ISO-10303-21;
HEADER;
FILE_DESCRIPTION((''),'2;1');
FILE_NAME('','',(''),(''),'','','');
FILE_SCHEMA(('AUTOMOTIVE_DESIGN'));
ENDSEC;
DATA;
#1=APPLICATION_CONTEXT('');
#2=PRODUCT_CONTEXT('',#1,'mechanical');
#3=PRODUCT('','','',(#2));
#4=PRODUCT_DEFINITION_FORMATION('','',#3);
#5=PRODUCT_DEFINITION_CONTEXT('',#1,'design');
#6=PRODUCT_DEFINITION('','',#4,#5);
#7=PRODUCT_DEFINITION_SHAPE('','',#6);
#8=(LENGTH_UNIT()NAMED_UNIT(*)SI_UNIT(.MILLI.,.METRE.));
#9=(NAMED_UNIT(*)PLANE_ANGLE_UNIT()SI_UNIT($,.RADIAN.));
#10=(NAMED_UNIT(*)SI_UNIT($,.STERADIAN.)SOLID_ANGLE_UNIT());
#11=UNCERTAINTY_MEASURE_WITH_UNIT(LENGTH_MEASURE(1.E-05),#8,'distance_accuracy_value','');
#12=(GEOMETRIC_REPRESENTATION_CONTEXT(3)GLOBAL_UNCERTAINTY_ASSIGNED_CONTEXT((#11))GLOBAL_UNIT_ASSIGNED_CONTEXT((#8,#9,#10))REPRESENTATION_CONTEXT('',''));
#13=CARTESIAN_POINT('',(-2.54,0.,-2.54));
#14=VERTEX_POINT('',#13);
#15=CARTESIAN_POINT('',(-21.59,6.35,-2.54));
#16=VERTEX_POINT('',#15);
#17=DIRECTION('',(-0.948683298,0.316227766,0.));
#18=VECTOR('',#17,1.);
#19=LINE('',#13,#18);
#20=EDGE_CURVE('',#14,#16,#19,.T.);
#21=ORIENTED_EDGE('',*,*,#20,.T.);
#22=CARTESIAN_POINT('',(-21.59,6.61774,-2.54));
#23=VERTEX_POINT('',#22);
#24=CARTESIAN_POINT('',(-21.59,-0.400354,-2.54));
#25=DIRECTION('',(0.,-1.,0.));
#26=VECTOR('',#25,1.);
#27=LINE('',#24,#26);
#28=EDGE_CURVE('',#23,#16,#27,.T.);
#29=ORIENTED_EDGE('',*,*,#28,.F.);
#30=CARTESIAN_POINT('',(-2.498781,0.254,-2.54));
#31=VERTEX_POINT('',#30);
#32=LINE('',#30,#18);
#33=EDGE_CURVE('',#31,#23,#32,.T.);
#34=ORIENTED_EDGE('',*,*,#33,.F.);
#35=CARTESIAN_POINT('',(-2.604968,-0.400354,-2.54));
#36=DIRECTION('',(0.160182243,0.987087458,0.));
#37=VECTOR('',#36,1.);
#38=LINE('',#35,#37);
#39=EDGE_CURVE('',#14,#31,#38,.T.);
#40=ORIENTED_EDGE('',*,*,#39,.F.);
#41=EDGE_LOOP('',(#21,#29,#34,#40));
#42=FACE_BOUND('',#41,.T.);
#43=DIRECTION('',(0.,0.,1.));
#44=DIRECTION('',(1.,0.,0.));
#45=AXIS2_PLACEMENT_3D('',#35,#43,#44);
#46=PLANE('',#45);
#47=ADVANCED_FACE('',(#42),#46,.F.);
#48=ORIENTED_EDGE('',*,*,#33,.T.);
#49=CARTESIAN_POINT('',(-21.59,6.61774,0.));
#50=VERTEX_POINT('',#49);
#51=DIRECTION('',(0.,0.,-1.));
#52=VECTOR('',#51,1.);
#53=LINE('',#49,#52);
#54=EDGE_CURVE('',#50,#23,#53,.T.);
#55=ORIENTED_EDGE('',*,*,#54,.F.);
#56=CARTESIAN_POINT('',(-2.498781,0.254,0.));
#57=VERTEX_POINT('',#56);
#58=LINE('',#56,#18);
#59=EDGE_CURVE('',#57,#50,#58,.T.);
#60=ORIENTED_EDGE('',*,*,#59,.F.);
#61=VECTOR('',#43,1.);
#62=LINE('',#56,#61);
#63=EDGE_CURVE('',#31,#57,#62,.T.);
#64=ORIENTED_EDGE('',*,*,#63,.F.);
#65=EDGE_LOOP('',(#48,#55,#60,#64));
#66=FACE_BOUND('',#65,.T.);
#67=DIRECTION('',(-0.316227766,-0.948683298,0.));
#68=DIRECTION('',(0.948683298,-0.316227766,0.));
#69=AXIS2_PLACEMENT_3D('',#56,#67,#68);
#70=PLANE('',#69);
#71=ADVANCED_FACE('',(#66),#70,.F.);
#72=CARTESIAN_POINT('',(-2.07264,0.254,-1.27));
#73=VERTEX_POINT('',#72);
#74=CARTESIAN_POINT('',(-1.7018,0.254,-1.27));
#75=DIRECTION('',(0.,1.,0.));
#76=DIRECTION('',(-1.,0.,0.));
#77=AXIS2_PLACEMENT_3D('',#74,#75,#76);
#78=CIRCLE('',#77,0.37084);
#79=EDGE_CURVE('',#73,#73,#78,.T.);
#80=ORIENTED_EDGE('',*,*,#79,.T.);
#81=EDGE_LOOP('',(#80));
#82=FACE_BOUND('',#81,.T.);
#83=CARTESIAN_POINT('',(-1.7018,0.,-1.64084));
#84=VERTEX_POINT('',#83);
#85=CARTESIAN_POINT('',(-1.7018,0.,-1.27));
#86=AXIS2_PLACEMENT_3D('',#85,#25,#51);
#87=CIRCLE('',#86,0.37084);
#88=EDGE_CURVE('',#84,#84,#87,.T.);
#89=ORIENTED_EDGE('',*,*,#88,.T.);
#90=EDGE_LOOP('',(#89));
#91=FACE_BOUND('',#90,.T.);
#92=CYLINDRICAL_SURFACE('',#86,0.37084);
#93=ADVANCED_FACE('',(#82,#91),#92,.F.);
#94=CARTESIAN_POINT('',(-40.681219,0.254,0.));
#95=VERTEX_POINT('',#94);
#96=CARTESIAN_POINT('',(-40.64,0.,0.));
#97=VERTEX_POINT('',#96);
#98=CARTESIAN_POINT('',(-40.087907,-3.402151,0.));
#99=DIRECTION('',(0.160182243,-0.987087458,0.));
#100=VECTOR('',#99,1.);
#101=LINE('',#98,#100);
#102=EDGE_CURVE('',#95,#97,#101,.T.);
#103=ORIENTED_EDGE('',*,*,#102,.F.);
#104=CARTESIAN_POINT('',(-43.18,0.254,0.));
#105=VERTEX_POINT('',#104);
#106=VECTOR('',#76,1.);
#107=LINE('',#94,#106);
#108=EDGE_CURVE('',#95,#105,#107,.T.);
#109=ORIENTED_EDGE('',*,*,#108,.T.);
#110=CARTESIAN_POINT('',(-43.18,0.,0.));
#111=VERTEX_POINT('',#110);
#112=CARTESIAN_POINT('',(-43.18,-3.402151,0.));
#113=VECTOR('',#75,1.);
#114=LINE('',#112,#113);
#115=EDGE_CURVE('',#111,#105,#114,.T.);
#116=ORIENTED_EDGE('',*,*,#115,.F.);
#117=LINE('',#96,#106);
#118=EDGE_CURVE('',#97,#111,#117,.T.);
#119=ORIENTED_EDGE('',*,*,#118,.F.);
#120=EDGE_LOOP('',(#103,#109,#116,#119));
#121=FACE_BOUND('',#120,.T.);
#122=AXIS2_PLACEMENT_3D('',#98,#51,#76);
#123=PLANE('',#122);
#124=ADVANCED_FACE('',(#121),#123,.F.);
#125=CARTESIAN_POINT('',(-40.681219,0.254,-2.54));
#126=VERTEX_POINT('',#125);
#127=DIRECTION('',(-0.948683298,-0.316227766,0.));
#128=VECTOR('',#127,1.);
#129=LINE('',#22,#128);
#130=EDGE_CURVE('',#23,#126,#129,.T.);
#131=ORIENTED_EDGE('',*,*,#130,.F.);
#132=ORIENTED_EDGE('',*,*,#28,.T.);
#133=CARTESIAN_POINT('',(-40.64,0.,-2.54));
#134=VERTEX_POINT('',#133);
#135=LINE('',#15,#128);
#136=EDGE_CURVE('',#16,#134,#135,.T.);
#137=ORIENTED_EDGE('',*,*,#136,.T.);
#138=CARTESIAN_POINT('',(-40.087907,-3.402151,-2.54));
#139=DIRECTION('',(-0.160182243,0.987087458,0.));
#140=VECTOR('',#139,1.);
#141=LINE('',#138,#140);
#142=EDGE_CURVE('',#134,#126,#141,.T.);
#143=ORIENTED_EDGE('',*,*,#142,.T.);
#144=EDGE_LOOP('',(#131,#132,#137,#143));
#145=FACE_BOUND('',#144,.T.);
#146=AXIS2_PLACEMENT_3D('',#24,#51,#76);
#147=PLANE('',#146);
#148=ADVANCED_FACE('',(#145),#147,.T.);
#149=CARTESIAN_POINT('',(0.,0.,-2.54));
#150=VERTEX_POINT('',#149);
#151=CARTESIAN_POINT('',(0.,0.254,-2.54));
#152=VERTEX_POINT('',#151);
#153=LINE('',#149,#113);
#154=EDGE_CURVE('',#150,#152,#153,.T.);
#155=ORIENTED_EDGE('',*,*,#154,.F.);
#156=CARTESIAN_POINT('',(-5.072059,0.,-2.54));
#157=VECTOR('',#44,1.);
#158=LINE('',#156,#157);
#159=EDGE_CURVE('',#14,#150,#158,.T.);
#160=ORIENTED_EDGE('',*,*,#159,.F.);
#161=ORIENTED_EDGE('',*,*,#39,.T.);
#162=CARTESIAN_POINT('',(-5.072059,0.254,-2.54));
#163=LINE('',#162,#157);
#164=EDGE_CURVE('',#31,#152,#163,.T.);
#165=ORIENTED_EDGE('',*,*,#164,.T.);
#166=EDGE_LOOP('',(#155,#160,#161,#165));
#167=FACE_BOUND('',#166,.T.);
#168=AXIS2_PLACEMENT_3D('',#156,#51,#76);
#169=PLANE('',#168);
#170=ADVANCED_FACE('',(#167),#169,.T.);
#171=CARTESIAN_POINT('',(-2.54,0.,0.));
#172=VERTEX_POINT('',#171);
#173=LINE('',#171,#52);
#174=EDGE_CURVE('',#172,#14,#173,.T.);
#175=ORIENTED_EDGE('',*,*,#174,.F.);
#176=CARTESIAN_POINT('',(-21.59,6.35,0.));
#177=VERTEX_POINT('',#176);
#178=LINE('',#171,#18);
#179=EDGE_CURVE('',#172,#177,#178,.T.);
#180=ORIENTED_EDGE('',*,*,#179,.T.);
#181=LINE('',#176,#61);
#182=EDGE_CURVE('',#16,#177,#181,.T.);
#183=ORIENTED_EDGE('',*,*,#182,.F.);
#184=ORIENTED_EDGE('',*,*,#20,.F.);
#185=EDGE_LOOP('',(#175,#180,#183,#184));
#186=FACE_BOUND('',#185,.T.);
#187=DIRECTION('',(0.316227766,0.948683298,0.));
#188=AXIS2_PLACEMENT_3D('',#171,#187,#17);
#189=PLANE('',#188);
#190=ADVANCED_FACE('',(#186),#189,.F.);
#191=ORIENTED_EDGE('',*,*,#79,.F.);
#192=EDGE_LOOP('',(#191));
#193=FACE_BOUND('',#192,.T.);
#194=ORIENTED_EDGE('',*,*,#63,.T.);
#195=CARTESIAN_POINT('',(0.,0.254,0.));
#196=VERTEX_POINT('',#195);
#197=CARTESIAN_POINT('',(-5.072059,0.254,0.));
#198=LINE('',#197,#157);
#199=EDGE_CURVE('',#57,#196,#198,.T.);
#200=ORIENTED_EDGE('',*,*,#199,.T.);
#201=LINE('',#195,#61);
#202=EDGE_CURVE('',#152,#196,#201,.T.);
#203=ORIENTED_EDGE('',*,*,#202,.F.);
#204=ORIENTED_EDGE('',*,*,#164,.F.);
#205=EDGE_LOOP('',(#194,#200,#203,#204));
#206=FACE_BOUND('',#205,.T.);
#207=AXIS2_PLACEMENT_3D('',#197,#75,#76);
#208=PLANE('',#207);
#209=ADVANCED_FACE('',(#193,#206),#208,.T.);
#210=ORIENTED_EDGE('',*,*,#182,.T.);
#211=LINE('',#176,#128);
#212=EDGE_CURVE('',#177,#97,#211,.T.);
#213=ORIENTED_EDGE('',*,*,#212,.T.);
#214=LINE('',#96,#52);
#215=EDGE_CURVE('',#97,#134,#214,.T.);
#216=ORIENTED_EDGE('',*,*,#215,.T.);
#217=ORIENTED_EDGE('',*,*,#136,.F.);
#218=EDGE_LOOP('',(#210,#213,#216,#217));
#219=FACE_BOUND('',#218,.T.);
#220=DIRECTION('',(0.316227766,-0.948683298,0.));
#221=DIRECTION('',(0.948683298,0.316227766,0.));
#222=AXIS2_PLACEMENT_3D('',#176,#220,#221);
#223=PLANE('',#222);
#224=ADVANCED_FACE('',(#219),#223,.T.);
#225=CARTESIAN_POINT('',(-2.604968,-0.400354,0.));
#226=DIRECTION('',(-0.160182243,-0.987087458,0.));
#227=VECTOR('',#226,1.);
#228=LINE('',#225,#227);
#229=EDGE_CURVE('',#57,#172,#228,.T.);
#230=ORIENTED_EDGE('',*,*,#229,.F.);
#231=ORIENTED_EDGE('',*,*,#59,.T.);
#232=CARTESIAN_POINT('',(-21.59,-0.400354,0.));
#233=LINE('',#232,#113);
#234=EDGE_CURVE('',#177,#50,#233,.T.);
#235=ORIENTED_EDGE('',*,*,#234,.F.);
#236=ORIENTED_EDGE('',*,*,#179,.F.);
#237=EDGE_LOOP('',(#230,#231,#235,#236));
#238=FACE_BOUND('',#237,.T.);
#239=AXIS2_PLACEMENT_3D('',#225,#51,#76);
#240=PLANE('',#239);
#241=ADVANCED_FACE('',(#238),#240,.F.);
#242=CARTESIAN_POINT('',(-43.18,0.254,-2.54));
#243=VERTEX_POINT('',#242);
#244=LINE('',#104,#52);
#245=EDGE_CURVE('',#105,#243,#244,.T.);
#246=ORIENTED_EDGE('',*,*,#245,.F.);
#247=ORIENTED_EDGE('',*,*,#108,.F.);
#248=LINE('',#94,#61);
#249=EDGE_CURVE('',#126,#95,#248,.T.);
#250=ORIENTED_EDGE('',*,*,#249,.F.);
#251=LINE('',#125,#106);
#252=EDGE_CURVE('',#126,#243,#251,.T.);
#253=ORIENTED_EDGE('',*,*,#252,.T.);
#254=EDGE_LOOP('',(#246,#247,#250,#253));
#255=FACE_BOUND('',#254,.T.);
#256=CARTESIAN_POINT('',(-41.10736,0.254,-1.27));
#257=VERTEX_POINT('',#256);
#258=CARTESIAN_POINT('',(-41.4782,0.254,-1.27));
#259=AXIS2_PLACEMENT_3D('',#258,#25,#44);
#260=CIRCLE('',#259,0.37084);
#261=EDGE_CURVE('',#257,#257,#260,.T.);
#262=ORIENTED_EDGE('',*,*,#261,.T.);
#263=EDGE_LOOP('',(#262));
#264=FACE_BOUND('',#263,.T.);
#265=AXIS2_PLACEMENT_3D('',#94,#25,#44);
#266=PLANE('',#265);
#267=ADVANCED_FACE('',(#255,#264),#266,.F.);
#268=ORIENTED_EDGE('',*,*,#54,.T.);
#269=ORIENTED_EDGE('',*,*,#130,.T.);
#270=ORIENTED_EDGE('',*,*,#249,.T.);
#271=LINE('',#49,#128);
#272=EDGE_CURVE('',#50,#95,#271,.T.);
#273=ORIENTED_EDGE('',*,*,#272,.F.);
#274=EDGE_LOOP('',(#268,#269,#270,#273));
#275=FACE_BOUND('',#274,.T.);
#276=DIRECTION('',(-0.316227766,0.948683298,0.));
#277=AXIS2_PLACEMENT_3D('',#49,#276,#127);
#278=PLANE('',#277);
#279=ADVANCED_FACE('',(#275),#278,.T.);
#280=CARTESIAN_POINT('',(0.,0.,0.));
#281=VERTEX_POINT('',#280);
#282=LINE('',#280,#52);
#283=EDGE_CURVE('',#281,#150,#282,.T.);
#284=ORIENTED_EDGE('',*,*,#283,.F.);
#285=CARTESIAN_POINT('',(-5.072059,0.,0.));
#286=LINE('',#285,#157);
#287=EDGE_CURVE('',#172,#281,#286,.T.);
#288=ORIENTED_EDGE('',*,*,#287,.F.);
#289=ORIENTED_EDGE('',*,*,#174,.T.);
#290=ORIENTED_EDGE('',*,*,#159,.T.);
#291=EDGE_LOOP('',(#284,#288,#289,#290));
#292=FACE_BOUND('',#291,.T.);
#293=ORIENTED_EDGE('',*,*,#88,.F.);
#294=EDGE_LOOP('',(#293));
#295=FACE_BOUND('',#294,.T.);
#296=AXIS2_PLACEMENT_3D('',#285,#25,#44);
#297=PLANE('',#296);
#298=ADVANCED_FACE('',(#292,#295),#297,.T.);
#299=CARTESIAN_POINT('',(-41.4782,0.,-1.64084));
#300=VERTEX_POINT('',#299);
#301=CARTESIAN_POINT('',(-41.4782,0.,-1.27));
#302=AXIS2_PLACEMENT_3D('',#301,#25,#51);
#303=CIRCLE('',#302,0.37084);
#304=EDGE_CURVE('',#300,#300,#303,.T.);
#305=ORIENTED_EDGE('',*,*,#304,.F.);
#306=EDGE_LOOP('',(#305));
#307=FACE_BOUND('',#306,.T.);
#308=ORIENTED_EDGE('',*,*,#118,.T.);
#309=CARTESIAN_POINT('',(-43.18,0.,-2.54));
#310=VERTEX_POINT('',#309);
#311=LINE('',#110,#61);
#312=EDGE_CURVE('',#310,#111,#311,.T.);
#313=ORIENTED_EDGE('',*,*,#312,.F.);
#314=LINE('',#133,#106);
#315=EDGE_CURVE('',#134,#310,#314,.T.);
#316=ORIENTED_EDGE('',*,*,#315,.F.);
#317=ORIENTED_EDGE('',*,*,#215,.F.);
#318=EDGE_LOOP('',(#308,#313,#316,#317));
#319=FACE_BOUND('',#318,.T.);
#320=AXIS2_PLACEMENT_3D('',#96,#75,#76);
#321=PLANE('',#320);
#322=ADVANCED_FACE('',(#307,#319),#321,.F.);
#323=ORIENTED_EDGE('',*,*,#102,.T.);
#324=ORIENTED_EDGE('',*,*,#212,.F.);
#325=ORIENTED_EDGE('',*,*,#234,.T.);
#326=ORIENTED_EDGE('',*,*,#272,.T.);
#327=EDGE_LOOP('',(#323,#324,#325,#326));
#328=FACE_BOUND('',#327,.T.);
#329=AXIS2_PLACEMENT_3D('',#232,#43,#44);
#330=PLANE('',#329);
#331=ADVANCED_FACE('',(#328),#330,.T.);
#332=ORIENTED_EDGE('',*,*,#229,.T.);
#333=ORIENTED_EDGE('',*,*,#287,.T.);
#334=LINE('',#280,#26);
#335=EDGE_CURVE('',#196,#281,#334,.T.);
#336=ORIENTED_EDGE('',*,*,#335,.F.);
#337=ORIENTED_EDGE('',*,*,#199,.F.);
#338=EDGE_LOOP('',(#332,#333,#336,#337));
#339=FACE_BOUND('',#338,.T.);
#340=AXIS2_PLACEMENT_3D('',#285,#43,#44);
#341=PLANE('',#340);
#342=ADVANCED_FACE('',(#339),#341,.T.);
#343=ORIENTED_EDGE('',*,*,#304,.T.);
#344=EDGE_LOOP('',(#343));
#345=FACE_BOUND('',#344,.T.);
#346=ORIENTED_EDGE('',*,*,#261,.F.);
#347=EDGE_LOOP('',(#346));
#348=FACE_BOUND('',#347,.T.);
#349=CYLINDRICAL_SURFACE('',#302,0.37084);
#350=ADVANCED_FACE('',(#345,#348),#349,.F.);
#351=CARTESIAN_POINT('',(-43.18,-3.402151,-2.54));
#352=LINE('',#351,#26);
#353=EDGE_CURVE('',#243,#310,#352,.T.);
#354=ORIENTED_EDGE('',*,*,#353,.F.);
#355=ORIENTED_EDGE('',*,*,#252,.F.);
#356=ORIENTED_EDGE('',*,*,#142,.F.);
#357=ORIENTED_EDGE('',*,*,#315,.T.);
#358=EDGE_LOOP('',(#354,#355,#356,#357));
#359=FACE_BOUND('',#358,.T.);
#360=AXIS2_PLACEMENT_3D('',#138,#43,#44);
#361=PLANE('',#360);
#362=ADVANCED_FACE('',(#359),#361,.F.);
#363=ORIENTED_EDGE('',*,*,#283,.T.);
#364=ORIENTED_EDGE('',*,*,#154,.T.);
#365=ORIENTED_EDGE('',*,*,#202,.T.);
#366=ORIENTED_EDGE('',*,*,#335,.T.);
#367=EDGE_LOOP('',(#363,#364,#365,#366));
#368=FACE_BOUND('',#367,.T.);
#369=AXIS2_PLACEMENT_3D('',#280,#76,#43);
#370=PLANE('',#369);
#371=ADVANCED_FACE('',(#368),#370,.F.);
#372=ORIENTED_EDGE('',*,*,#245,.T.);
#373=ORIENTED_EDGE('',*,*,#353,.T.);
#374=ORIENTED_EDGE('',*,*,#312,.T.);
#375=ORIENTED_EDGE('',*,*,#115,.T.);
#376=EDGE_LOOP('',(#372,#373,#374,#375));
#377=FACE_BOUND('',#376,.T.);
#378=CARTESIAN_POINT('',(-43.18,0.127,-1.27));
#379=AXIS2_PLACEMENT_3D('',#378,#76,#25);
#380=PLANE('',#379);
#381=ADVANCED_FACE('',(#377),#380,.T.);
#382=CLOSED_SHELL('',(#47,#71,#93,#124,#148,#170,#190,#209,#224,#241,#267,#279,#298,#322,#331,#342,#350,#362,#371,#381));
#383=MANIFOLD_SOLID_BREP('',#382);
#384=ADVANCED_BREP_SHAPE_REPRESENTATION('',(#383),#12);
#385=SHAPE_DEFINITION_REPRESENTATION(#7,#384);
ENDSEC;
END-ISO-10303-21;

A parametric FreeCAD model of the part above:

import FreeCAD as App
import Part
import Sketcher
from FreeCAD import Vector
Q = App.Units.Quantity


def add_polygon(sketch, points):
    """Adds a closed chain of lines whose ends are joined by coincident constraints."""
    first, n = sketch.GeometryCount, len(points)
    for a, b in zip(points, points[1:] + points[:1]):
        sketch.addGeometry(Part.LineSegment(App.Vector(*a, 0), App.Vector(*b, 0)), False)
    for i in range(n):
        sketch.addConstraint(Sketcher.Constraint("Coincident", first + i, 2, first + (i + 1) % n, 1))

doc = App.newDocument("Part")
body = doc.addObject("PartDesign::Body", "Body")

sketch1 = body.newObject("Sketcher::SketchObject", "Sketch")
sketch1.AttachmentSupport = (doc.getObject("YZ_Plane"), [""])
sketch1.MapMode = "FlatFace"
add_polygon(sketch1, [(0.25, 0), (0, 0), (0, -2.54), (0.25, -2.54)])
sketch1.addConstraint(Sketcher.Constraint("Horizontal", 0))
sketch1.addConstraint(Sketcher.Constraint("Vertical", 1))
sketch1.addConstraint(Sketcher.Constraint("Horizontal", 2))
sketch1.addConstraint(Sketcher.Constraint("Vertical", 3))
sketch1.addConstraint(Sketcher.Constraint("Coincident", 0, 2, -1, 1))
sketch1.addConstraint(Sketcher.Constraint("DistanceY", 1, 2, 1, 1, Q("0.1 in")))
sketch1.addConstraint(Sketcher.Constraint("DistanceX", 0, 2, 0, 1, Q("0.01 in")))

sketch2 = body.newObject("Sketcher::SketchObject", "Sketch001")
sketch2.AttachmentSupport = (doc.getObject("XY_Plane"), [""])
sketch2.MapMode = "FlatFace"
sketch2.addGeometry(Part.LineSegment(Vector(-43.2, 0, 0), Vector(-40.6, 0, 0)), False)
sketch2.addGeometry(Part.LineSegment(Vector(-40.6, 0, 0), Vector(-21.6, 6.3, 0)), False)
sketch2.addGeometry(Part.LineSegment(Vector(-21.6, 6.3, 0), Vector(-2.5, 0, 0)), False)
sketch2.addGeometry(Part.LineSegment(Vector(-2.5, 0, 0), Vector(0, 0, 0)), False)
sketch2.addConstraint(Sketcher.Constraint("Coincident", 0, 2, 1, 1))
sketch2.addConstraint(Sketcher.Constraint("Coincident", 1, 2, 2, 1))
sketch2.addConstraint(Sketcher.Constraint("Coincident", 2, 2, 3, 1))
sketch2.addConstraint(Sketcher.Constraint("Horizontal", 0))
sketch2.addConstraint(Sketcher.Constraint("Horizontal", 3))
sketch2.addConstraint(Sketcher.Constraint("Coincident", 3, 2, -1, 1))
sketch2.addConstraint(Sketcher.Constraint("PointOnObject", 0, 1, -1))
sketch2.addConstraint(Sketcher.Constraint("Equal", 0, 3))
sketch2.addConstraint(Sketcher.Constraint("Equal", 1, 2))
sketch2.addConstraint(Sketcher.Constraint("DistanceX", 0, 1, 0, 2, Q("0.1 in")))
sketch2.addConstraint(Sketcher.Constraint("DistanceX", 0, 1, -1, 1, Q("1.7 in")))
sketch2.addConstraint(Sketcher.Constraint("DistanceY", -1, 1, 1, 2, Q("0.25 in")))
doc.recompute()

additivepipe = body.newObject("PartDesign::AdditivePipe", "AdditivePipe")
additivepipe.Profile = sketch1
additivepipe.Spine = (sketch2, ["Edge1", "Edge2", "Edge3", "Edge4"])
additivepipe.Transition = "Right corner"

sketch3 = body.newObject("Sketcher::SketchObject", "Sketch002")
sketch3.AttachmentSupport = (doc.getObject("XZ_Plane"), [""])
sketch3.MapMode = "FlatFace"
sketch3.addGeometry(Part.Circle(Vector(-41.48, -1.27, 0), Vector(0, 0, 1), 0.37), False)
sketch3.addGeometry(Part.Circle(Vector(-1.7, -1.27, 0), Vector(0, 0, 1), 0.37), False)
sketch3.addConstraint(Sketcher.Constraint("Equal", 0, 1))
sketch3.addConstraint(Sketcher.Constraint("Horizontal", 0, 3, 1, 3))
sketch3.addConstraint(Sketcher.Constraint("Diameter", 0, Q("0.0292 in")))
sketch3.addConstraint(Sketcher.Constraint("DistanceY", 0, 3, -1, 1, Q("0.05 in")))
sketch3.addConstraint(Sketcher.Constraint("DistanceX", 0, 3, -1, 1, Q("1.633 in")))
sketch3.addConstraint(Sketcher.Constraint("DistanceX", 1, 3, -1, 1, Q("0.067 in")))
doc.recompute()
hole = body.newObject("PartDesign::Hole", "Hole")
hole.Profile = sketch3
hole.ThreadType = "None"
hole.Diameter = Q("0.0292 in")
hole.DepthType = "ThroughAll"

doc.recompute()
